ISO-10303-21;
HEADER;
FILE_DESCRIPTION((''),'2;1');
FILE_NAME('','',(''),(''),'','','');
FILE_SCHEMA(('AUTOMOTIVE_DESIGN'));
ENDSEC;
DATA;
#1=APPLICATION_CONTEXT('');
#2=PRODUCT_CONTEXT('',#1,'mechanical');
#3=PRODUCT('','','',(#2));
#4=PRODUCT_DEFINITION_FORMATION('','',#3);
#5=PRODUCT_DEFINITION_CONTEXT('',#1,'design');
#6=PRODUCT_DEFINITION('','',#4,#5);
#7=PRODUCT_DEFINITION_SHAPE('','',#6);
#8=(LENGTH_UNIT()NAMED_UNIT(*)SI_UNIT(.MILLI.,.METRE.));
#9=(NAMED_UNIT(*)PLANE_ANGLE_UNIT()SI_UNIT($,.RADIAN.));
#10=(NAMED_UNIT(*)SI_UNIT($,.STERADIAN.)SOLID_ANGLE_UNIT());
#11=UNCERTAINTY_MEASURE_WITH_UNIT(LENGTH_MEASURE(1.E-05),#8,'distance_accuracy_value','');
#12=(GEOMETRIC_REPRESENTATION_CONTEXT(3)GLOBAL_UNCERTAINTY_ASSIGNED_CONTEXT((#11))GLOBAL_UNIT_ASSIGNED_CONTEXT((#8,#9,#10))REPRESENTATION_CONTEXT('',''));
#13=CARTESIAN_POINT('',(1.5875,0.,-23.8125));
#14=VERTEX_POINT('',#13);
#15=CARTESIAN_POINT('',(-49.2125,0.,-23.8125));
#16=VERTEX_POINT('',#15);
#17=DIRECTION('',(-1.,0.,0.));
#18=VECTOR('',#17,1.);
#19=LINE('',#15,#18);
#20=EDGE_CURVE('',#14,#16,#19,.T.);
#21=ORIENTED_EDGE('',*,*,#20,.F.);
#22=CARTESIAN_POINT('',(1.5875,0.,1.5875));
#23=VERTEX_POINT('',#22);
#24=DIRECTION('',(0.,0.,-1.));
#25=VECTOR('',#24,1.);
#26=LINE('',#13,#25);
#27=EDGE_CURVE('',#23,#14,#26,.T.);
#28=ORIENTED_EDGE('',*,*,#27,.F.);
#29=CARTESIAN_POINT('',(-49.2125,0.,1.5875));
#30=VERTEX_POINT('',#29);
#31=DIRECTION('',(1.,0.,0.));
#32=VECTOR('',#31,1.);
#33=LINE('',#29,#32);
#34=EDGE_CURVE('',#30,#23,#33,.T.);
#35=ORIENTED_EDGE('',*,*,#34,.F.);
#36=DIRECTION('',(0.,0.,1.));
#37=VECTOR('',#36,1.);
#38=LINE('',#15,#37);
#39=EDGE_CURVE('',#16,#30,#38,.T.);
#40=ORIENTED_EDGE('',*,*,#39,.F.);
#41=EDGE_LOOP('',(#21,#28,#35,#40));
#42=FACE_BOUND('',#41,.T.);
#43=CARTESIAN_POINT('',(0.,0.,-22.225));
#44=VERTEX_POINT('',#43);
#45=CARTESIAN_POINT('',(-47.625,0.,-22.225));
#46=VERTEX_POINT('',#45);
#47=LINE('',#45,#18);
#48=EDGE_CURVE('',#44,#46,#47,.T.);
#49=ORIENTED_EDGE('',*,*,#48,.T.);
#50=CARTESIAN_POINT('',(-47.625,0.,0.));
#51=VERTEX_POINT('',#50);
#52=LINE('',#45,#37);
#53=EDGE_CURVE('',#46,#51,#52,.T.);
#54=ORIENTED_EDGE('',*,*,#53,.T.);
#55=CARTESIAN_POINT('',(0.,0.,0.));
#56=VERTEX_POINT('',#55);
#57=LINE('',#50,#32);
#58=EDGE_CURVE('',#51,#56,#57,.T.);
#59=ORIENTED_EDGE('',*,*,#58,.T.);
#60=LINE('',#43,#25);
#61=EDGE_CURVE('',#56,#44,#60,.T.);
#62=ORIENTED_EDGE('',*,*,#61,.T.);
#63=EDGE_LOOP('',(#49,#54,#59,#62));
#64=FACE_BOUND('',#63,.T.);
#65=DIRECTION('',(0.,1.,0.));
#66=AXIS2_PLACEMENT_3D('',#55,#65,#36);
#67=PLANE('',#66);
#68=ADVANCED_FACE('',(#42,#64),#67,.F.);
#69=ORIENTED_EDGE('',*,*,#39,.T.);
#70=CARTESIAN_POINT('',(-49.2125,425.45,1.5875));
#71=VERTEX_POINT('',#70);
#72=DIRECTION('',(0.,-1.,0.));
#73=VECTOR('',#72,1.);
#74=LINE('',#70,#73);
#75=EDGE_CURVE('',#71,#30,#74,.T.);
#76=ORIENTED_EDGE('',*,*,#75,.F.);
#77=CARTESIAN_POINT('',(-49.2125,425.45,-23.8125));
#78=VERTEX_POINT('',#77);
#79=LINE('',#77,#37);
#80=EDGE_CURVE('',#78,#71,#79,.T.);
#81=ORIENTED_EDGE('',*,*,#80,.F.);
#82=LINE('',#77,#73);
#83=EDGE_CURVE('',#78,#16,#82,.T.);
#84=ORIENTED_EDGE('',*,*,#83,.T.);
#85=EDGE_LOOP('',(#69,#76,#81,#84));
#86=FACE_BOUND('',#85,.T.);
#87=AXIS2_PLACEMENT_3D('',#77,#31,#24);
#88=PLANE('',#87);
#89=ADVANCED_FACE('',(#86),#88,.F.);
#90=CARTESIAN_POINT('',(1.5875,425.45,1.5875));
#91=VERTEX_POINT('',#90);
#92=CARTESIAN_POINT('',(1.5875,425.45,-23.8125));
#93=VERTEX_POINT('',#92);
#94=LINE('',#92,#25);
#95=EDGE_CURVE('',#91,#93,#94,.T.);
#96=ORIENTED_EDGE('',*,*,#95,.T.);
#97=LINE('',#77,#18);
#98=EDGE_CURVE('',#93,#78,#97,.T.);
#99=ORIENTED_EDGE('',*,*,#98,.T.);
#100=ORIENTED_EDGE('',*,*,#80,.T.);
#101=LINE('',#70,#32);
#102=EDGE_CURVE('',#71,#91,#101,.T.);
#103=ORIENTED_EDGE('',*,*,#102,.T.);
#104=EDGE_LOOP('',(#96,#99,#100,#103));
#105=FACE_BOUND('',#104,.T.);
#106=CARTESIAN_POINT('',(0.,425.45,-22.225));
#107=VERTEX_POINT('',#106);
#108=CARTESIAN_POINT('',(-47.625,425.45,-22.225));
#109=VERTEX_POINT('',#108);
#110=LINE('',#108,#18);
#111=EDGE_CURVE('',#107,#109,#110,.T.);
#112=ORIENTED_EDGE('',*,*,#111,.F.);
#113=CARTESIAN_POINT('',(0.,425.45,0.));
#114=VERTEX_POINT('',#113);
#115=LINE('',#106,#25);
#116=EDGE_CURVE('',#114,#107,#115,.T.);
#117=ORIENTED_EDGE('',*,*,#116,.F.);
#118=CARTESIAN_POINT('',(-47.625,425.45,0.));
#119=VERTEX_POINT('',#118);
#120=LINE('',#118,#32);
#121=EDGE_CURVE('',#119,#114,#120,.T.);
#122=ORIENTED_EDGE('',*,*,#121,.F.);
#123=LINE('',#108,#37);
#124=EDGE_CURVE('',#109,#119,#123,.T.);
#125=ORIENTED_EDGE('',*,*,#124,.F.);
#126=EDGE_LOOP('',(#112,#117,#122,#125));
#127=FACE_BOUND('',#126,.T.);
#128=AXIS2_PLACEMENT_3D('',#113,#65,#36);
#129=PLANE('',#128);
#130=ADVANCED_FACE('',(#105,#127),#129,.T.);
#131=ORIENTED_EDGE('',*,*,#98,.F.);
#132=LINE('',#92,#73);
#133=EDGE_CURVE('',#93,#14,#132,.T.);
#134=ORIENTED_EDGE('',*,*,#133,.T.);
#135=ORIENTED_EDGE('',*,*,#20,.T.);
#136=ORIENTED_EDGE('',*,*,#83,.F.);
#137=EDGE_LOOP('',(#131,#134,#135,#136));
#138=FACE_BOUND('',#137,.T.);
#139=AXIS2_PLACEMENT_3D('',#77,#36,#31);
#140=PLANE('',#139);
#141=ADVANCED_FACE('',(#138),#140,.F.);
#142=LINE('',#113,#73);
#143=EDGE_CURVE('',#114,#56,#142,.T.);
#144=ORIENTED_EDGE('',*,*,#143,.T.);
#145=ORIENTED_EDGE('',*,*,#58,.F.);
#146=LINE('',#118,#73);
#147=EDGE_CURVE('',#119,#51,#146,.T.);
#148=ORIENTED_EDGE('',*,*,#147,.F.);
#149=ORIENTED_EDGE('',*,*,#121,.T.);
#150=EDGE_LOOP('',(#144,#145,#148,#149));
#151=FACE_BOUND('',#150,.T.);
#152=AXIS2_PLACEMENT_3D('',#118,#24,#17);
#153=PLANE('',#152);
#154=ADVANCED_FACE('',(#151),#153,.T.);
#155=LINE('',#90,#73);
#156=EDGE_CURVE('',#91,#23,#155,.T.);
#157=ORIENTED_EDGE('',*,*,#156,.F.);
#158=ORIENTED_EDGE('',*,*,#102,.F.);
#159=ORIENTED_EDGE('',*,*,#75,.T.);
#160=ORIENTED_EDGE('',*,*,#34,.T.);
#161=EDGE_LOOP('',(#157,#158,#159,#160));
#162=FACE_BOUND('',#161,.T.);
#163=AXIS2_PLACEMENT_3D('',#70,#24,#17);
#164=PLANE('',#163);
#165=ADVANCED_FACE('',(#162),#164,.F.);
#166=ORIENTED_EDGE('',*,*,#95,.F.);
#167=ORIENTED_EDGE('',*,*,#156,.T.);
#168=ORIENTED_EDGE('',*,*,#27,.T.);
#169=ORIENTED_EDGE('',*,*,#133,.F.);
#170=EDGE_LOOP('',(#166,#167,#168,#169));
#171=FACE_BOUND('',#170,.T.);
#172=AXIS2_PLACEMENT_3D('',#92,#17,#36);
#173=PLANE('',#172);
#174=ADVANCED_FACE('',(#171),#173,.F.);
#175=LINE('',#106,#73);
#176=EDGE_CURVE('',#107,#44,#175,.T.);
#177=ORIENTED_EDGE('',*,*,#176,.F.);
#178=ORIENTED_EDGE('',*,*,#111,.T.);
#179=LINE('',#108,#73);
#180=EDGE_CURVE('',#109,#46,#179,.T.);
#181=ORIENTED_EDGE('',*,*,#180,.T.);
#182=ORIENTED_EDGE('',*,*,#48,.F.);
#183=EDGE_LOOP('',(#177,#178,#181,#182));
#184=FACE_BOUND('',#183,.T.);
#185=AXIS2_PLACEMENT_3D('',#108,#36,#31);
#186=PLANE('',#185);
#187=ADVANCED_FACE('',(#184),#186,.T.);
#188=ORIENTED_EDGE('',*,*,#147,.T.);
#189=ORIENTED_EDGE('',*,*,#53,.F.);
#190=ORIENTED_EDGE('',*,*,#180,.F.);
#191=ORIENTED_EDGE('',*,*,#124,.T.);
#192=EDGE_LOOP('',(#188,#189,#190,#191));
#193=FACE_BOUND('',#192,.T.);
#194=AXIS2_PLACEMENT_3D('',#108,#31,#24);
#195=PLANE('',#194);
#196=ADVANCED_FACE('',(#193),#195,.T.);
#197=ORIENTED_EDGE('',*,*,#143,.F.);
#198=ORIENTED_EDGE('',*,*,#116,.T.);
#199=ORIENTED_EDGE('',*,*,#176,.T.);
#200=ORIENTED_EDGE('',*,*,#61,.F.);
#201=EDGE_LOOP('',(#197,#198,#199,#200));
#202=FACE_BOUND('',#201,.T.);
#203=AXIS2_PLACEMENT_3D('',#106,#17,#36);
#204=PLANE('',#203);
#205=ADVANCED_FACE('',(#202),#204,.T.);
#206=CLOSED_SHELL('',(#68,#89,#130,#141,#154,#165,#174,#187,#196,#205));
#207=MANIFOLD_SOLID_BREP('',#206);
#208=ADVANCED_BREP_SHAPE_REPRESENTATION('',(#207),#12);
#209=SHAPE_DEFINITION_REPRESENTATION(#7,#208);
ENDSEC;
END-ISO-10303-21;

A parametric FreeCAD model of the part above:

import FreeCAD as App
import Part
import Sketcher

V = App.Vector
Q = App.Units.Quantity


def add_polygon(sketch, points):
    """Adds a closed chain of lines whose ends are joined by coincident constraints."""
    first, n = sketch.GeometryCount, len(points)
    for a, b in zip(points, points[1:] + points[:1]):
        sketch.addGeometry(Part.LineSegment(App.Vector(*a, 0), App.Vector(*b, 0)), False)
    for i in range(n):
        sketch.addConstraint(Sketcher.Constraint("Coincident", first + i, 2, first + (i + 1) % n, 1))

doc = App.newDocument("Part")
body = doc.addObject("PartDesign::Body", "Body")

# Sketch on XZ plane
sketch1 = body.newObject("Sketcher::SketchObject", "Sketch")
sketch1.AttachmentSupport = (doc.getObject("XZ_Plane"), [""])
sketch1.MapMode = "FlatFace"
add_polygon(sketch1, [(-49.2125, -23.8125), (-49.2125, 1.5875), (1.5875, 1.5875), (1.5875, -23.8125)])  # lines 0-3
add_polygon(sketch1, [(0, 0), (-47.625, 0), (-47.625, -22.225), (0, -22.225)])  # lines 4-7
sketch1.addConstraint([
    Sketcher.Constraint("Vertical", 0),
    Sketcher.Constraint("Horizontal", 1),
    Sketcher.Constraint("Vertical", 2),
    Sketcher.Constraint("Horizontal", 3),
    Sketcher.Constraint("Horizontal", 4),
    Sketcher.Constraint("Vertical", 5),
    Sketcher.Constraint("Horizontal", 6),
    Sketcher.Constraint("Vertical", 7),
    Sketcher.Constraint("Coincident", 7, 2, -1, 1),
    Sketcher.Constraint("DistanceX", 1, 1, 1, 2, Q("2 in")),
    Sketcher.Constraint("DistanceY", 0, 1, 0, 2, Q("1 in")),
    Sketcher.Constraint("DistanceX", 4, 2, 4, 1, Q("1.875 in")),
    Sketcher.Constraint("DistanceY", 5, 2, 5, 1, Q("0.875 in")),
    Sketcher.Constraint("DistanceX", 0, 2, -1, 1, Q("1.9375 in")),
    Sketcher.Constraint("DistanceY", -1, 1, 0, 2, Q("0.0625 in")),
])
pad1 = body.newObject("PartDesign::Pad", "Pad")
pad1.Profile = sketch1
pad1.Length = Q("16.75 in")
pad1.Reversed = True

doc.recompute()
